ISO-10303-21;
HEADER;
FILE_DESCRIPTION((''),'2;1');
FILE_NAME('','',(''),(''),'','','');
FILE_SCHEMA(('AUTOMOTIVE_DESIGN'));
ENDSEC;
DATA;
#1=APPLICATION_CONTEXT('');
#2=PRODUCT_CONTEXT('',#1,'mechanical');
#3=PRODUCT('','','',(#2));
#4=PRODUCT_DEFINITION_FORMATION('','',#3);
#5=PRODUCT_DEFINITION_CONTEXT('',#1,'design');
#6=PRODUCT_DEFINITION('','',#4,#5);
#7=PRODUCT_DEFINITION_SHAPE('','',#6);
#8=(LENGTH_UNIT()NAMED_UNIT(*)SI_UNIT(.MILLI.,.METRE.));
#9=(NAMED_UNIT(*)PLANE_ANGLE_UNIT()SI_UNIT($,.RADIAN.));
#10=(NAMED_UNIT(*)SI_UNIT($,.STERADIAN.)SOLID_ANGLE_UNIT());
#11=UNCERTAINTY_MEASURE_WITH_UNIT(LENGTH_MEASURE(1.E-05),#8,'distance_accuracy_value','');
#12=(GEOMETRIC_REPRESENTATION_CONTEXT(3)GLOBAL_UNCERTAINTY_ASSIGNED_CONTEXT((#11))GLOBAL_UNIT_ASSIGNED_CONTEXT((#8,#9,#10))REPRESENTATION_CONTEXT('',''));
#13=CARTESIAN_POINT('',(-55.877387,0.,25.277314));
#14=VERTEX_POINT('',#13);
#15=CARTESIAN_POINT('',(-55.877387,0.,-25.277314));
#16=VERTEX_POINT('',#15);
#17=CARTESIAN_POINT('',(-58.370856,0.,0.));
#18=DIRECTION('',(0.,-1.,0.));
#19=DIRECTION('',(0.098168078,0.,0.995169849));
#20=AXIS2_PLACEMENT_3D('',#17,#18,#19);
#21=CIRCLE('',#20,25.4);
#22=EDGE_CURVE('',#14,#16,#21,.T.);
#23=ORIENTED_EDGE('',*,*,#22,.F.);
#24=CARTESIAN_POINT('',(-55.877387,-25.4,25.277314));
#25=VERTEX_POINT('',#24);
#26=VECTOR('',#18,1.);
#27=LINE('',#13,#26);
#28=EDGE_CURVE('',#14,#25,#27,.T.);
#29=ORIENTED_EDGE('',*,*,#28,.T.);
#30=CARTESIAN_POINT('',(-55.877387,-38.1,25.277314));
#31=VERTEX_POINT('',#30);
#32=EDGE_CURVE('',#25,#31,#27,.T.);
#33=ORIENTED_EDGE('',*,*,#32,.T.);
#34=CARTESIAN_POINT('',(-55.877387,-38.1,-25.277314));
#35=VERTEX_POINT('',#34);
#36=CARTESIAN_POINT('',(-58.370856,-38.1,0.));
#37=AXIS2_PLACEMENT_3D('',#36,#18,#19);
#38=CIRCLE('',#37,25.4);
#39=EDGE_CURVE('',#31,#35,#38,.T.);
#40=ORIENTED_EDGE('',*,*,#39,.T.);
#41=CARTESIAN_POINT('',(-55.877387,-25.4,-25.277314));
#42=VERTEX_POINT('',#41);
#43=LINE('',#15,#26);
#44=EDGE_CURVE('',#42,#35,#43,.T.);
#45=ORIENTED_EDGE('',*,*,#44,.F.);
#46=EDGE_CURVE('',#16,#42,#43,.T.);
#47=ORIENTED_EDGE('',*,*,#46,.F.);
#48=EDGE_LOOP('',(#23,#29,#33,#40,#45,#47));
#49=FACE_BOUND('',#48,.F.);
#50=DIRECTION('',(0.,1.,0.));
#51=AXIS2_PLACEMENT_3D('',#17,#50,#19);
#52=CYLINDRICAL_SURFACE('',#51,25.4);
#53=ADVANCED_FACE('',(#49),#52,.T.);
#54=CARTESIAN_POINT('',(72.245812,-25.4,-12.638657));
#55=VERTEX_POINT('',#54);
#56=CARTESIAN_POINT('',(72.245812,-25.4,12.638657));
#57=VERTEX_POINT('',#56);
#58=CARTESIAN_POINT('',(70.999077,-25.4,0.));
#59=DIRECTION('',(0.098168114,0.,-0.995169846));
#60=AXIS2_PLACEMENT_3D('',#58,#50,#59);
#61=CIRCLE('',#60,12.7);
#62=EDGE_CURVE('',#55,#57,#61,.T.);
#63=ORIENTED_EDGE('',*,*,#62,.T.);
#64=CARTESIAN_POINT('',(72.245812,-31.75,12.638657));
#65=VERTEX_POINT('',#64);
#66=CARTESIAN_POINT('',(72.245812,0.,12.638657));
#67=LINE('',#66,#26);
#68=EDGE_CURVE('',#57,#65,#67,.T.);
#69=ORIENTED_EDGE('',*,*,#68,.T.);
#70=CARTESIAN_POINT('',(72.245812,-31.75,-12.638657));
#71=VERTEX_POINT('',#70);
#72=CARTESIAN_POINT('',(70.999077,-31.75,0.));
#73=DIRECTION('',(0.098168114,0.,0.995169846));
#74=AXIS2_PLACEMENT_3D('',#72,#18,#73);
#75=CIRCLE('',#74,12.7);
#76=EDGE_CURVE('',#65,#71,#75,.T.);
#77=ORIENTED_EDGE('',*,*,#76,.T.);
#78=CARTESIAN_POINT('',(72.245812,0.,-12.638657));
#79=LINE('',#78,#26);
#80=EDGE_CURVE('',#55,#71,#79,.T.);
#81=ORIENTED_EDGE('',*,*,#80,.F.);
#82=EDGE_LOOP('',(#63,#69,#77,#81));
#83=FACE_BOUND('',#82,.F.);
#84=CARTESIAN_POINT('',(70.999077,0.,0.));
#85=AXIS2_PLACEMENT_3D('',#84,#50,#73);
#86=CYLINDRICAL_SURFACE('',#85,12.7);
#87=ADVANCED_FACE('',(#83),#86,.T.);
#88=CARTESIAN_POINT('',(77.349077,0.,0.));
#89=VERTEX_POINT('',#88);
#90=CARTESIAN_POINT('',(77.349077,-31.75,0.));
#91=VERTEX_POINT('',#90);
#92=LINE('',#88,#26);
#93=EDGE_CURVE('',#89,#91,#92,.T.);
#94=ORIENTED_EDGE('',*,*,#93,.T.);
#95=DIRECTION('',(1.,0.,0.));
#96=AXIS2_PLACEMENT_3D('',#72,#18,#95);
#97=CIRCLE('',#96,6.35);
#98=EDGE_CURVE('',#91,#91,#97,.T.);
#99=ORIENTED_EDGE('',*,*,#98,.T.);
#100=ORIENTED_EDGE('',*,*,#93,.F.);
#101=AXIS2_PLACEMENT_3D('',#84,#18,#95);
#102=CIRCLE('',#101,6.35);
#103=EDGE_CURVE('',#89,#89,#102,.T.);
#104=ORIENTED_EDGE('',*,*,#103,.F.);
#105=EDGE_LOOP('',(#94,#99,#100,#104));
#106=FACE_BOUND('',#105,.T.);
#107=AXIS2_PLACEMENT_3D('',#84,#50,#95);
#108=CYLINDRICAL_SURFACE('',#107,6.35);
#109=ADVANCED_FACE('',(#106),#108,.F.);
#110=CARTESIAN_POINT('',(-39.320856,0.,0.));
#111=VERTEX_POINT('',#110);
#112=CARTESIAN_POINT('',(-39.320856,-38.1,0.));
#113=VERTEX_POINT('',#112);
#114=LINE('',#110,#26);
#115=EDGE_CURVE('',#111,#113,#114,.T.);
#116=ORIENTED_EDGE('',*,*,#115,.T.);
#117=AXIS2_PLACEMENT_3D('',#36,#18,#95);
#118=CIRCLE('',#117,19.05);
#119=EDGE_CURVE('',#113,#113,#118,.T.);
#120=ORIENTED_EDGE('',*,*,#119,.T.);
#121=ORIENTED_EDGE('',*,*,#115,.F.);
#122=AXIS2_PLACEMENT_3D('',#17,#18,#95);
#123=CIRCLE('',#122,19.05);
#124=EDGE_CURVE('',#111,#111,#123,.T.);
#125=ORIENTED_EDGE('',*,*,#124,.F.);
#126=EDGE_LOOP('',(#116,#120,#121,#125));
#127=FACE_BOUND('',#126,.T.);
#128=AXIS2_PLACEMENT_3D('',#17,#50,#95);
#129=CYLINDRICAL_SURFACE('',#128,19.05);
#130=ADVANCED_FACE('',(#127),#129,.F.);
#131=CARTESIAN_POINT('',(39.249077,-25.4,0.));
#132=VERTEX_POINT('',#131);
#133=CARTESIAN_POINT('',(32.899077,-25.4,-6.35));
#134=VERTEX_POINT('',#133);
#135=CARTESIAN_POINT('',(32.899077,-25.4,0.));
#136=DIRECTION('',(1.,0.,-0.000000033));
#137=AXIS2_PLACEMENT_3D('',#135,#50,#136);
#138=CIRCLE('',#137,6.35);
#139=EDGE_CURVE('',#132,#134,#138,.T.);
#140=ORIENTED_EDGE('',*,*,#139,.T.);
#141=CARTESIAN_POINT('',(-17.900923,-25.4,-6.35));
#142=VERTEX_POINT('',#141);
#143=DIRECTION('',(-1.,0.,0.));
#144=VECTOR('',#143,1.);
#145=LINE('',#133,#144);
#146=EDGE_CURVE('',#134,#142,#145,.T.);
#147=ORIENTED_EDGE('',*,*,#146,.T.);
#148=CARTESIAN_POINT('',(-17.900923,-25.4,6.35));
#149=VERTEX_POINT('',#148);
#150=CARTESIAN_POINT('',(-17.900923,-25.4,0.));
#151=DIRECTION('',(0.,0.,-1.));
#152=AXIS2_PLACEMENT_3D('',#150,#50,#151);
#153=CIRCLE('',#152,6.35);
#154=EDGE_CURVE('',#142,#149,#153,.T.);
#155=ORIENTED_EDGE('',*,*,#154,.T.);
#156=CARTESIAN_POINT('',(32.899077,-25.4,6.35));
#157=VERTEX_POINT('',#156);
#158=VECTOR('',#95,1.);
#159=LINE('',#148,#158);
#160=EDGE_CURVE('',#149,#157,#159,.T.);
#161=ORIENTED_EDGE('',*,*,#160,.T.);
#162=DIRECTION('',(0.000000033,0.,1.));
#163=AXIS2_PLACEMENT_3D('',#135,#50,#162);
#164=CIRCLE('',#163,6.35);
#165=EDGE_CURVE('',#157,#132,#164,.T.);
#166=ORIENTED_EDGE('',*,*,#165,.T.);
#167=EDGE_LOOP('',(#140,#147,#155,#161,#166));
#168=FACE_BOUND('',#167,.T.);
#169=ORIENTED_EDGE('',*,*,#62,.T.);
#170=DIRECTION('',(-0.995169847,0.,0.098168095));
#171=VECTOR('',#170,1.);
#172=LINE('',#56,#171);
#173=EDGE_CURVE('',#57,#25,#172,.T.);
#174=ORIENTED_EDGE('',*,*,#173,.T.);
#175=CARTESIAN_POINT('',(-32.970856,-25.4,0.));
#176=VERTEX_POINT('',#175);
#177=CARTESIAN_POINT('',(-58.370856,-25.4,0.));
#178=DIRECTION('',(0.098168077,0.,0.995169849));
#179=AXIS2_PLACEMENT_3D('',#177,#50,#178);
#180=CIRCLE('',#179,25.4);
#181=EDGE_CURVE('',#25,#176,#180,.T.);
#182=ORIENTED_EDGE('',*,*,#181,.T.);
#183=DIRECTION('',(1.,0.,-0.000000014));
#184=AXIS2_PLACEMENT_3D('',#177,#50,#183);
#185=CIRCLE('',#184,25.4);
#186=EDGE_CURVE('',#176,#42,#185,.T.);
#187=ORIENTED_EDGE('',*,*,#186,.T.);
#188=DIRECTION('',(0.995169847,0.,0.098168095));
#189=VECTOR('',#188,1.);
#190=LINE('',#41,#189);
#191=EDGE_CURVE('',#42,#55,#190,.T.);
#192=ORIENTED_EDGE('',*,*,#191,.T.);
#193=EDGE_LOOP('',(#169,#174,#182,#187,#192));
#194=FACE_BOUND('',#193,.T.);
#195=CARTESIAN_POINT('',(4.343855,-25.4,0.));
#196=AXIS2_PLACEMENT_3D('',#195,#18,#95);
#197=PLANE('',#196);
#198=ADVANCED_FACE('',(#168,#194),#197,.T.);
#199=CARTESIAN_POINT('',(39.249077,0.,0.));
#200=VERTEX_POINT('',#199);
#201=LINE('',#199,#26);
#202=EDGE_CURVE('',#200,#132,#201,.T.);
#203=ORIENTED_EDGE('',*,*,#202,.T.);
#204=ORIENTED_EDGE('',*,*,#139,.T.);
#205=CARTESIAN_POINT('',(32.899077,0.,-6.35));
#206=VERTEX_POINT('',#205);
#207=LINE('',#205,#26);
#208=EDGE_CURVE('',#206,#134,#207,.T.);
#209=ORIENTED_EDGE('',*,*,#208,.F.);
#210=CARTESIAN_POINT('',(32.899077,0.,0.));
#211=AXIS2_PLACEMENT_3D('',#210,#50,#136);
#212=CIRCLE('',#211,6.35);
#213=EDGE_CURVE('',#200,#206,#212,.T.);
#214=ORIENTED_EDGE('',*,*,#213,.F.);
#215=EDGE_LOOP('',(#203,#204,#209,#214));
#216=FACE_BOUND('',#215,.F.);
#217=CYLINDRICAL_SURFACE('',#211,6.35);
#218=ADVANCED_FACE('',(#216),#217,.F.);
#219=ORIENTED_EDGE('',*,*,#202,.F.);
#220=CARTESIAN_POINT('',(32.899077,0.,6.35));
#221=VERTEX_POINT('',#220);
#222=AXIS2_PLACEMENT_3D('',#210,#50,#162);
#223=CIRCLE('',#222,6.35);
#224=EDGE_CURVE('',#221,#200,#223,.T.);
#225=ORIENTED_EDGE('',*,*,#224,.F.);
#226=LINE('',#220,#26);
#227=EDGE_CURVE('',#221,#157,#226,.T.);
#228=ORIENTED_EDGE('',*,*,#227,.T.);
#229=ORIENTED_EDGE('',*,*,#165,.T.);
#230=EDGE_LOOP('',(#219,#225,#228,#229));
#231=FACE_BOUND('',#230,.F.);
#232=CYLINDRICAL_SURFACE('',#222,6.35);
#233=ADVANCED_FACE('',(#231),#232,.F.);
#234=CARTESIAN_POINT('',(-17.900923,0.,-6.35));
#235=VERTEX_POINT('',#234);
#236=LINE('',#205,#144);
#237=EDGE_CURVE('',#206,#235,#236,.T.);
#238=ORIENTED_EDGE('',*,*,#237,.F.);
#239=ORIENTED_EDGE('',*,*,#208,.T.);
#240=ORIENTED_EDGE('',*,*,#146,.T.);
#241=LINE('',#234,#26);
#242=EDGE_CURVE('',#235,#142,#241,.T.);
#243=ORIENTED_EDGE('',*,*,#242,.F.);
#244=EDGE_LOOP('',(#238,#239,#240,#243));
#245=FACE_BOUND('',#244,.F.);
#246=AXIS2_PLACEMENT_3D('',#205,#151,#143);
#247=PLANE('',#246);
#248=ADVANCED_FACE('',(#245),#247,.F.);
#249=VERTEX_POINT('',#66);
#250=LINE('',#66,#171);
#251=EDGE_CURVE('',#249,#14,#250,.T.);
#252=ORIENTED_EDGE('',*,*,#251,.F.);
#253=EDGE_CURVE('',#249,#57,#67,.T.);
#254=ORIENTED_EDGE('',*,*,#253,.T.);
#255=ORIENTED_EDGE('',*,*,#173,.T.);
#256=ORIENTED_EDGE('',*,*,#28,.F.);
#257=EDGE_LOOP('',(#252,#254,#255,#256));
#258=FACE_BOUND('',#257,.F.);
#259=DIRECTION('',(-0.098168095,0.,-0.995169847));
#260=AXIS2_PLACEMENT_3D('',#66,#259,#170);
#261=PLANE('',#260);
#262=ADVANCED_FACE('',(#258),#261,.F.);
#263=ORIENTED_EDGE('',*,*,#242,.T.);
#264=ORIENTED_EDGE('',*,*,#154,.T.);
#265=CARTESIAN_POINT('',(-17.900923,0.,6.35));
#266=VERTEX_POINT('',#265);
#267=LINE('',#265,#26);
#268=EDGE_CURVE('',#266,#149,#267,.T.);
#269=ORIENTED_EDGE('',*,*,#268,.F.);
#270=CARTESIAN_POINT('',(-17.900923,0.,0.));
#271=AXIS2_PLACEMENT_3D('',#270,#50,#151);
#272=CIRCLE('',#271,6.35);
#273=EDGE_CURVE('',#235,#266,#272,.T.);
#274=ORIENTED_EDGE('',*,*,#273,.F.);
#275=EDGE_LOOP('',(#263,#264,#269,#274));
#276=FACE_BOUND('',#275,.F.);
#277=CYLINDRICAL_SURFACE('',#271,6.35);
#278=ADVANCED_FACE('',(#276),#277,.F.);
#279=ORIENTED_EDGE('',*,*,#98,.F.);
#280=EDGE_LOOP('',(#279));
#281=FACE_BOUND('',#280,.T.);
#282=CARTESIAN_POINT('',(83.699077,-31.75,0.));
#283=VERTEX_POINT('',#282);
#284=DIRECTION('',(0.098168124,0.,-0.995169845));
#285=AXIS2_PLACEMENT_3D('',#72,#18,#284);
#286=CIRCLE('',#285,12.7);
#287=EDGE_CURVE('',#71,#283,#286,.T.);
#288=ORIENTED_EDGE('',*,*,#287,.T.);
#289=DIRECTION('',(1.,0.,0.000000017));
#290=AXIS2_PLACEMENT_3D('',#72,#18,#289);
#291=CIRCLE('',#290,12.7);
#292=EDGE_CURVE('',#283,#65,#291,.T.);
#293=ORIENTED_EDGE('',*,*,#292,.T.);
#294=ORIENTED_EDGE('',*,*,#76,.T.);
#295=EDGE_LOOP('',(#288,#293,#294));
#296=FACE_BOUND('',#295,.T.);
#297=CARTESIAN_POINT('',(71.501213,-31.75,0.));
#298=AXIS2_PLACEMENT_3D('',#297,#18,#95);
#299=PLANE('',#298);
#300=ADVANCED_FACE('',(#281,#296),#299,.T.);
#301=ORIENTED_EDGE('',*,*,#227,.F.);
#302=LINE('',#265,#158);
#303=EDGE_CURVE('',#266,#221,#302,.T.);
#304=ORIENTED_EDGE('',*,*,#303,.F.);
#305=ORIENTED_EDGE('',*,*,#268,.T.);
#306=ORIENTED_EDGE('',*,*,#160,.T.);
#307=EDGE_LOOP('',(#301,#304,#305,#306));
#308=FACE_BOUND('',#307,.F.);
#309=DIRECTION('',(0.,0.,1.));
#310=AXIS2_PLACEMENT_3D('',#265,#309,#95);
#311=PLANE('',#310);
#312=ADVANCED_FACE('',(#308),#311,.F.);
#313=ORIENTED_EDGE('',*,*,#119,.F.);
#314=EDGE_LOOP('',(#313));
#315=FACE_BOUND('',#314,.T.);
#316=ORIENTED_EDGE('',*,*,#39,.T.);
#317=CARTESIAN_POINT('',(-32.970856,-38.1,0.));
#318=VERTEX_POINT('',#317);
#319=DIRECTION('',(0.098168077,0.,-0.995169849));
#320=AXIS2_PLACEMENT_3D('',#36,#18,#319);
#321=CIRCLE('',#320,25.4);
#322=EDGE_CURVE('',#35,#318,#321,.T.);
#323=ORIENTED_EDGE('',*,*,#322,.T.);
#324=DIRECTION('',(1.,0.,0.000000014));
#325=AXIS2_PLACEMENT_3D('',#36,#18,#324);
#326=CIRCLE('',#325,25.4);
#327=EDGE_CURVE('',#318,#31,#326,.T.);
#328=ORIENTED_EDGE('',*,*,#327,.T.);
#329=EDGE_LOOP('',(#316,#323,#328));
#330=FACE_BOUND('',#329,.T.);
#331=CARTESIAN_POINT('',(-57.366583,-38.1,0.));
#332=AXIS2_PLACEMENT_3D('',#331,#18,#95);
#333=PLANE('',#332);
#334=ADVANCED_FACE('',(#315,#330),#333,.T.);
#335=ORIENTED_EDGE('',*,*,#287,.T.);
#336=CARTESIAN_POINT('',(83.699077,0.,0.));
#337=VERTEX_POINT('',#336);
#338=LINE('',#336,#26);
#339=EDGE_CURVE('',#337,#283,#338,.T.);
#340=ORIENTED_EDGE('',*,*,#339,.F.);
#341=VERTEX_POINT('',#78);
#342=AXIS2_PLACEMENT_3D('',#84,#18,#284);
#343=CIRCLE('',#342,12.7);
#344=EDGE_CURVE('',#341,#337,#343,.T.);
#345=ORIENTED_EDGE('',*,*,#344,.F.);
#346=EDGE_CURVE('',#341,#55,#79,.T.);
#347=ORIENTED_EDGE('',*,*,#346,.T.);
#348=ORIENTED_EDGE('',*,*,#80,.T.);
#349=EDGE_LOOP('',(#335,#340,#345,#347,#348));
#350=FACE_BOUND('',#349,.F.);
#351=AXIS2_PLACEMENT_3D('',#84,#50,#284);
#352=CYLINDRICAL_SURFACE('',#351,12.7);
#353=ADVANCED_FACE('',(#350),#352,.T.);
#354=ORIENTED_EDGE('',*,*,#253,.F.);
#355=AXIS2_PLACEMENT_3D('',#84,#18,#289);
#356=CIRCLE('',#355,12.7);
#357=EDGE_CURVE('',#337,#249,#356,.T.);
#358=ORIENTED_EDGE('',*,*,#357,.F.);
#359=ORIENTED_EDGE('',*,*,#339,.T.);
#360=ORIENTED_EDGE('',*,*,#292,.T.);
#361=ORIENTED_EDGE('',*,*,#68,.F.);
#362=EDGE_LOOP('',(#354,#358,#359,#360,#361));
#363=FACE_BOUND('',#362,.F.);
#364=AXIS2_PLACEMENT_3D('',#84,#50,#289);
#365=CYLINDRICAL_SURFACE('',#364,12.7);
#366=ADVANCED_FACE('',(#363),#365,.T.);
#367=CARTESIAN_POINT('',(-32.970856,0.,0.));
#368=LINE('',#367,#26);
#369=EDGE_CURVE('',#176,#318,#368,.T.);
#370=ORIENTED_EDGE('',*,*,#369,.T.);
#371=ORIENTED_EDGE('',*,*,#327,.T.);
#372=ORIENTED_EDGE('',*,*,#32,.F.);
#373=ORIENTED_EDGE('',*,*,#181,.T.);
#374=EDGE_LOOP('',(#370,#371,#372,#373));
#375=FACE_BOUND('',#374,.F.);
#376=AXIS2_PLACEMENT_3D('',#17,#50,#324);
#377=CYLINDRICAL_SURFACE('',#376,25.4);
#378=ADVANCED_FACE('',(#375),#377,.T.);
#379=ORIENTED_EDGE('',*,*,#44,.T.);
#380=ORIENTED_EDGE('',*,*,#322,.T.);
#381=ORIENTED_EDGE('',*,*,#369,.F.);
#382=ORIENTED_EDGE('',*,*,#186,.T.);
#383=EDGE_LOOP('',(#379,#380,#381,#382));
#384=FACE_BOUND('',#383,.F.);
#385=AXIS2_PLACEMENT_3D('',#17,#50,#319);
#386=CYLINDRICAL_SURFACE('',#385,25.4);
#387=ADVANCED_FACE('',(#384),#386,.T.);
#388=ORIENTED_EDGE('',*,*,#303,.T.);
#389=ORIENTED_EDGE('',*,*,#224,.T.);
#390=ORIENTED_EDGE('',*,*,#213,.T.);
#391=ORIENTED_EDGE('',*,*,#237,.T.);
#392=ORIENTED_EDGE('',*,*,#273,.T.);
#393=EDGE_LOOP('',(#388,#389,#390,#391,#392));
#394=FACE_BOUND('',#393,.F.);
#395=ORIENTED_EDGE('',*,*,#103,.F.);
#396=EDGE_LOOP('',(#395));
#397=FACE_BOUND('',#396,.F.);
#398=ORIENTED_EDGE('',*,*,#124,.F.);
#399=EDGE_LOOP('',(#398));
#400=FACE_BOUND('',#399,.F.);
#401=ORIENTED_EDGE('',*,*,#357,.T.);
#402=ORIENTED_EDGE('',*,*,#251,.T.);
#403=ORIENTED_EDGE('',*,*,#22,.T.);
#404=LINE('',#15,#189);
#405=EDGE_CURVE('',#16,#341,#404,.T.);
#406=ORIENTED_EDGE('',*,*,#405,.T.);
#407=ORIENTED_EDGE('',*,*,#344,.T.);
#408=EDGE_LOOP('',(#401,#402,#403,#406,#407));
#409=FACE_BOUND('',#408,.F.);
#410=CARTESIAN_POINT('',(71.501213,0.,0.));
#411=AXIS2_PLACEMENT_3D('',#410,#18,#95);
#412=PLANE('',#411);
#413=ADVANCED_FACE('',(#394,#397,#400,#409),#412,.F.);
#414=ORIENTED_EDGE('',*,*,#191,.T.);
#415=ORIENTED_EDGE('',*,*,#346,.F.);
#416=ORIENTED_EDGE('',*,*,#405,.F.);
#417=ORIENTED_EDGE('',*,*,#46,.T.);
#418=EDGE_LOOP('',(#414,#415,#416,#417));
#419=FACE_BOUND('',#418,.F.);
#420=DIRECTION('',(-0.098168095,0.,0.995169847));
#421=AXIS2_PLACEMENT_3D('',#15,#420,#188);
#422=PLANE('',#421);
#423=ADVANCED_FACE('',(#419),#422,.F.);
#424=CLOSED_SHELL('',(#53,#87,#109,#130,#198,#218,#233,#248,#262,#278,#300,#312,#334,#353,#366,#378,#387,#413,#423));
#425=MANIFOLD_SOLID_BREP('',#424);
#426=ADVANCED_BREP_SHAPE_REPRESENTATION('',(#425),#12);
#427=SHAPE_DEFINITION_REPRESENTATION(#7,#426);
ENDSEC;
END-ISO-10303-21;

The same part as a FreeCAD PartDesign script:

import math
import FreeCAD as App
import Part
import Sketcher
Q = App.Units.Quantity

doc = App.newDocument("Part")
params = doc.addObject("Spreadsheet::Sheet", "Params")
for row, (alias, value) in enumerate([
    ("sketch1_radius", "1 in"),
    ("sketch1_diameter", "1.5 in"),
    ("pad1_length", "1.5 in"),
    ("sketch2_radius", "1 in"),
    ("sketch2_radius2", "0.5 in"),
    ("sketch2_width", "2 in"),
    ("sketch2_radius3", "0.25 in"),
    ("pad2_length", "1 in"),
    ("sketch3_diameter", "0.5 in"),
    ("sketch3_radius", "0.5 in"),
    ("pad3_length", "1.25 in"),
], start=1):
    params.set(f"A{row}", alias)
    params.set(f"B{row}", "=" + value)
    params.setAlias(f"B{row}", alias)

body = doc.addObject("PartDesign::Body", "Body")

# Sketch on XZ plane
sketch1 = body.newObject("Sketcher::SketchObject", "Sketch")
sketch1.AttachmentSupport = (doc.getObject("XZ_Plane"), [""])
sketch1.MapMode = "FlatFace"
sketch1.addGeometry([
    Part.ArcOfCircle(Part.Circle(App.Vector(-58, 0, 0), App.Vector(0, 0, 1), 25), math.radians(-84), math.radians(0)),
    Part.ArcOfCircle(Part.Circle(App.Vector(-58, 0, 0), App.Vector(0, 0, 1), 25), math.radians(0), math.radians(84)),
    Part.ArcOfCircle(Part.Circle(App.Vector(-58, 0, 0), App.Vector(0, 0, 1), 25), math.radians(84), math.radians(276)),
    Part.Circle(App.Vector(-58, 0, 0), App.Vector(0, 0, 1), 19),
], False)
sketch1.addConstraint([
    Sketcher.Constraint("Tangent", 0, 2, 1, 1),
    Sketcher.Constraint("Tangent", 1, 2, 2, 1),
    Sketcher.Constraint("Tangent", 2, 2, 0, 1),
    Sketcher.Constraint("Coincident", 3, 3, 0, 3),
    Sketcher.Constraint("Symmetric", 1, 2, 2, 2, -1),
    Sketcher.Constraint("PointOnObject", 0, 2, -1),
    Sketcher.Constraint("Radius", 0, Q("1 in")),
    Sketcher.Constraint("Diameter", 3, Q("1.5 in")),
    Sketcher.Constraint("DistanceX", 0, 3, 1, 2, Q("2.493469 mm")),
    Sketcher.Constraint("DistanceX", 0, 3, -1, 1, Q("58.370856 mm")),
])
sketch1.setExpression("Constraints[6]", "Params.sketch1_radius")
sketch1.setExpression("Constraints[7]", "Params.sketch1_diameter")
pad1 = body.newObject("PartDesign::Pad", "Pad")
pad1.Profile = sketch1
pad1.setExpression("Length", "Params.pad1_length")

# Sketch on XZ plane
sketch2 = body.newObject("Sketcher::SketchObject", "Sketch001")
sketch2.AttachmentSupport = (doc.getObject("XZ_Plane"), [""])
sketch2.MapMode = "FlatFace"
sketch2.addGeometry([
    Part.ArcOfCircle(Part.Circle(App.Vector(-58, 0, 0), App.Vector(0, 0, 1), 25), math.radians(0), math.radians(84)),  # 0
    Part.ArcOfCircle(Part.Circle(App.Vector(-58, 0, 0), App.Vector(0, 0, 1), 25), math.radians(-84), math.radians(0)),  # 1
    Part.LineSegment(App.Vector(-56, -25, 0), App.Vector(72, -13, 0)),  # 2
    Part.ArcOfCircle(Part.Circle(App.Vector(71, 0, 0), App.Vector(0, 0, 1), 13), math.radians(84), math.radians(276)),  # 3
    Part.LineSegment(App.Vector(72, 13, 0), App.Vector(-56, 25, 0)),  # 4
    Part.LineSegment(App.Vector(33, -6, 0), App.Vector(-18, -6, 0)),  # 5
    Part.ArcOfCircle(Part.Circle(App.Vector(-18, 0, 0), App.Vector(0, 0, 1), 6), math.radians(90), math.radians(270)),  # 6
    Part.LineSegment(App.Vector(-18, 6, 0), App.Vector(33, 6, 0)),  # 7
    Part.ArcOfCircle(Part.Circle(App.Vector(33, 0, 0), App.Vector(0, 0, 1), 6), math.radians(0), math.radians(90)),  # 8
    Part.ArcOfCircle(Part.Circle(App.Vector(33, 0, 0), App.Vector(0, 0, 1), 6), math.radians(-90), math.radians(0)),  # 9
], False)
sketch2.addConstraint([
    Sketcher.Constraint("Tangent", 0, 1, 1, 2),
    Sketcher.Constraint("Tangent", 1, 1, 2, 1),
    Sketcher.Constraint("Tangent", 2, 2, 3, 2),
    Sketcher.Constraint("Tangent", 3, 1, 4, 1),
    Sketcher.Constraint("Tangent", 4, 2, 0, 2),
    Sketcher.Constraint("Tangent", 5, 2, 6, 2),
    Sketcher.Constraint("Tangent", 6, 1, 7, 1),
    Sketcher.Constraint("Tangent", 7, 2, 8, 2),
    Sketcher.Constraint("Tangent", 8, 1, 9, 2),
    Sketcher.Constraint("Tangent", 9, 1, 5, 1),
    Sketcher.Constraint("Horizontal", 5),
    Sketcher.Constraint("Horizontal", 7),
    Sketcher.Constraint("Equal", 0, 1),
    Sketcher.Constraint("Equal", 6, 8),
    Sketcher.Constraint("Symmetric", 2, 2, 3, 1, -1),
    Sketcher.Constraint("PointOnObject", 6, 3, -1),
    Sketcher.Constraint("PointOnObject", 0, 1, -1),
    Sketcher.Constraint("PointOnObject", 8, 1, -1),
    Sketcher.Constraint("Radius", 0, Q("1 in")),
    Sketcher.Constraint("Radius", 3, Q("0.5 in")),
    Sketcher.Constraint("DistanceX", 5, 2, 5, 1, Q("2 in")),
    Sketcher.Constraint("Radius", 6, Q("0.25 in")),
    Sketcher.Constraint("DistanceX", 6, 3, 3, 3, Q("3.5 in")),
    Sketcher.Constraint("DistanceX", -1, 1, 2, 2, Q("72.245812 mm")),
    Sketcher.Constraint("DistanceX", 0, 1, 2, 2, Q("105.216668 mm")),
])
sketch2.setExpression("Constraints[18]", "Params.sketch2_radius")
sketch2.setExpression("Constraints[19]", "Params.sketch2_radius2")
sketch2.setExpression("Constraints[20]", "Params.sketch2_width")
sketch2.setExpression("Constraints[21]", "Params.sketch2_radius3")
pad2 = body.newObject("PartDesign::Pad", "Pad001")
pad2.Profile = sketch2
pad2.setExpression("Length", "Params.pad2_length")

# Sketch on XZ plane
sketch3 = body.newObject("Sketcher::SketchObject", "Sketch002")
sketch3.AttachmentSupport = (doc.getObject("XZ_Plane"), [""])
sketch3.MapMode = "FlatFace"
sketch3.addGeometry([
    Part.ArcOfCircle(Part.Circle(App.Vector(71, 0, 0), App.Vector(0, 0, 1), 13), math.radians(0), math.radians(84)),
    Part.ArcOfCircle(Part.Circle(App.Vector(71, 0, 0), App.Vector(0, 0, 1), 13), math.radians(84), math.radians(276)),
    Part.ArcOfCircle(Part.Circle(App.Vector(71, 0, 0), App.Vector(0, 0, 1), 13), math.radians(-84), math.radians(0)),
    Part.Circle(App.Vector(71, 0, 0), App.Vector(0, 0, 1), 6),
], False)
sketch3.addConstraint([
    Sketcher.Constraint("Tangent", 0, 2, 1, 1),
    Sketcher.Constraint("Tangent", 1, 2, 2, 1),
    Sketcher.Constraint("Tangent", 2, 2, 0, 1),
    Sketcher.Constraint("Coincident", 3, 3, 0, 3),
    Sketcher.Constraint("Symmetric", 0, 2, 1, 2, -1),
    Sketcher.Constraint("PointOnObject", 2, 2, -1),
    Sketcher.Constraint("Diameter", 3, Q("0.5 in")),
    Sketcher.Constraint("Radius", 0, Q("0.5 in")),
    Sketcher.Constraint("DistanceX", -1, 1, 1, 2, Q("72.245812 mm")),
    Sketcher.Constraint("DistanceX", -1, 1, 0, 3, Q("70.999077 mm")),
])
sketch3.setExpression("Constraints[6]", "Params.sketch3_diameter")
sketch3.setExpression("Constraints[7]", "Params.sketch3_radius")
pad3 = body.newObject("PartDesign::Pad", "Pad002")
pad3.Profile = sketch3
pad3.setExpression("Length", "Params.pad3_length")

doc.recompute()
